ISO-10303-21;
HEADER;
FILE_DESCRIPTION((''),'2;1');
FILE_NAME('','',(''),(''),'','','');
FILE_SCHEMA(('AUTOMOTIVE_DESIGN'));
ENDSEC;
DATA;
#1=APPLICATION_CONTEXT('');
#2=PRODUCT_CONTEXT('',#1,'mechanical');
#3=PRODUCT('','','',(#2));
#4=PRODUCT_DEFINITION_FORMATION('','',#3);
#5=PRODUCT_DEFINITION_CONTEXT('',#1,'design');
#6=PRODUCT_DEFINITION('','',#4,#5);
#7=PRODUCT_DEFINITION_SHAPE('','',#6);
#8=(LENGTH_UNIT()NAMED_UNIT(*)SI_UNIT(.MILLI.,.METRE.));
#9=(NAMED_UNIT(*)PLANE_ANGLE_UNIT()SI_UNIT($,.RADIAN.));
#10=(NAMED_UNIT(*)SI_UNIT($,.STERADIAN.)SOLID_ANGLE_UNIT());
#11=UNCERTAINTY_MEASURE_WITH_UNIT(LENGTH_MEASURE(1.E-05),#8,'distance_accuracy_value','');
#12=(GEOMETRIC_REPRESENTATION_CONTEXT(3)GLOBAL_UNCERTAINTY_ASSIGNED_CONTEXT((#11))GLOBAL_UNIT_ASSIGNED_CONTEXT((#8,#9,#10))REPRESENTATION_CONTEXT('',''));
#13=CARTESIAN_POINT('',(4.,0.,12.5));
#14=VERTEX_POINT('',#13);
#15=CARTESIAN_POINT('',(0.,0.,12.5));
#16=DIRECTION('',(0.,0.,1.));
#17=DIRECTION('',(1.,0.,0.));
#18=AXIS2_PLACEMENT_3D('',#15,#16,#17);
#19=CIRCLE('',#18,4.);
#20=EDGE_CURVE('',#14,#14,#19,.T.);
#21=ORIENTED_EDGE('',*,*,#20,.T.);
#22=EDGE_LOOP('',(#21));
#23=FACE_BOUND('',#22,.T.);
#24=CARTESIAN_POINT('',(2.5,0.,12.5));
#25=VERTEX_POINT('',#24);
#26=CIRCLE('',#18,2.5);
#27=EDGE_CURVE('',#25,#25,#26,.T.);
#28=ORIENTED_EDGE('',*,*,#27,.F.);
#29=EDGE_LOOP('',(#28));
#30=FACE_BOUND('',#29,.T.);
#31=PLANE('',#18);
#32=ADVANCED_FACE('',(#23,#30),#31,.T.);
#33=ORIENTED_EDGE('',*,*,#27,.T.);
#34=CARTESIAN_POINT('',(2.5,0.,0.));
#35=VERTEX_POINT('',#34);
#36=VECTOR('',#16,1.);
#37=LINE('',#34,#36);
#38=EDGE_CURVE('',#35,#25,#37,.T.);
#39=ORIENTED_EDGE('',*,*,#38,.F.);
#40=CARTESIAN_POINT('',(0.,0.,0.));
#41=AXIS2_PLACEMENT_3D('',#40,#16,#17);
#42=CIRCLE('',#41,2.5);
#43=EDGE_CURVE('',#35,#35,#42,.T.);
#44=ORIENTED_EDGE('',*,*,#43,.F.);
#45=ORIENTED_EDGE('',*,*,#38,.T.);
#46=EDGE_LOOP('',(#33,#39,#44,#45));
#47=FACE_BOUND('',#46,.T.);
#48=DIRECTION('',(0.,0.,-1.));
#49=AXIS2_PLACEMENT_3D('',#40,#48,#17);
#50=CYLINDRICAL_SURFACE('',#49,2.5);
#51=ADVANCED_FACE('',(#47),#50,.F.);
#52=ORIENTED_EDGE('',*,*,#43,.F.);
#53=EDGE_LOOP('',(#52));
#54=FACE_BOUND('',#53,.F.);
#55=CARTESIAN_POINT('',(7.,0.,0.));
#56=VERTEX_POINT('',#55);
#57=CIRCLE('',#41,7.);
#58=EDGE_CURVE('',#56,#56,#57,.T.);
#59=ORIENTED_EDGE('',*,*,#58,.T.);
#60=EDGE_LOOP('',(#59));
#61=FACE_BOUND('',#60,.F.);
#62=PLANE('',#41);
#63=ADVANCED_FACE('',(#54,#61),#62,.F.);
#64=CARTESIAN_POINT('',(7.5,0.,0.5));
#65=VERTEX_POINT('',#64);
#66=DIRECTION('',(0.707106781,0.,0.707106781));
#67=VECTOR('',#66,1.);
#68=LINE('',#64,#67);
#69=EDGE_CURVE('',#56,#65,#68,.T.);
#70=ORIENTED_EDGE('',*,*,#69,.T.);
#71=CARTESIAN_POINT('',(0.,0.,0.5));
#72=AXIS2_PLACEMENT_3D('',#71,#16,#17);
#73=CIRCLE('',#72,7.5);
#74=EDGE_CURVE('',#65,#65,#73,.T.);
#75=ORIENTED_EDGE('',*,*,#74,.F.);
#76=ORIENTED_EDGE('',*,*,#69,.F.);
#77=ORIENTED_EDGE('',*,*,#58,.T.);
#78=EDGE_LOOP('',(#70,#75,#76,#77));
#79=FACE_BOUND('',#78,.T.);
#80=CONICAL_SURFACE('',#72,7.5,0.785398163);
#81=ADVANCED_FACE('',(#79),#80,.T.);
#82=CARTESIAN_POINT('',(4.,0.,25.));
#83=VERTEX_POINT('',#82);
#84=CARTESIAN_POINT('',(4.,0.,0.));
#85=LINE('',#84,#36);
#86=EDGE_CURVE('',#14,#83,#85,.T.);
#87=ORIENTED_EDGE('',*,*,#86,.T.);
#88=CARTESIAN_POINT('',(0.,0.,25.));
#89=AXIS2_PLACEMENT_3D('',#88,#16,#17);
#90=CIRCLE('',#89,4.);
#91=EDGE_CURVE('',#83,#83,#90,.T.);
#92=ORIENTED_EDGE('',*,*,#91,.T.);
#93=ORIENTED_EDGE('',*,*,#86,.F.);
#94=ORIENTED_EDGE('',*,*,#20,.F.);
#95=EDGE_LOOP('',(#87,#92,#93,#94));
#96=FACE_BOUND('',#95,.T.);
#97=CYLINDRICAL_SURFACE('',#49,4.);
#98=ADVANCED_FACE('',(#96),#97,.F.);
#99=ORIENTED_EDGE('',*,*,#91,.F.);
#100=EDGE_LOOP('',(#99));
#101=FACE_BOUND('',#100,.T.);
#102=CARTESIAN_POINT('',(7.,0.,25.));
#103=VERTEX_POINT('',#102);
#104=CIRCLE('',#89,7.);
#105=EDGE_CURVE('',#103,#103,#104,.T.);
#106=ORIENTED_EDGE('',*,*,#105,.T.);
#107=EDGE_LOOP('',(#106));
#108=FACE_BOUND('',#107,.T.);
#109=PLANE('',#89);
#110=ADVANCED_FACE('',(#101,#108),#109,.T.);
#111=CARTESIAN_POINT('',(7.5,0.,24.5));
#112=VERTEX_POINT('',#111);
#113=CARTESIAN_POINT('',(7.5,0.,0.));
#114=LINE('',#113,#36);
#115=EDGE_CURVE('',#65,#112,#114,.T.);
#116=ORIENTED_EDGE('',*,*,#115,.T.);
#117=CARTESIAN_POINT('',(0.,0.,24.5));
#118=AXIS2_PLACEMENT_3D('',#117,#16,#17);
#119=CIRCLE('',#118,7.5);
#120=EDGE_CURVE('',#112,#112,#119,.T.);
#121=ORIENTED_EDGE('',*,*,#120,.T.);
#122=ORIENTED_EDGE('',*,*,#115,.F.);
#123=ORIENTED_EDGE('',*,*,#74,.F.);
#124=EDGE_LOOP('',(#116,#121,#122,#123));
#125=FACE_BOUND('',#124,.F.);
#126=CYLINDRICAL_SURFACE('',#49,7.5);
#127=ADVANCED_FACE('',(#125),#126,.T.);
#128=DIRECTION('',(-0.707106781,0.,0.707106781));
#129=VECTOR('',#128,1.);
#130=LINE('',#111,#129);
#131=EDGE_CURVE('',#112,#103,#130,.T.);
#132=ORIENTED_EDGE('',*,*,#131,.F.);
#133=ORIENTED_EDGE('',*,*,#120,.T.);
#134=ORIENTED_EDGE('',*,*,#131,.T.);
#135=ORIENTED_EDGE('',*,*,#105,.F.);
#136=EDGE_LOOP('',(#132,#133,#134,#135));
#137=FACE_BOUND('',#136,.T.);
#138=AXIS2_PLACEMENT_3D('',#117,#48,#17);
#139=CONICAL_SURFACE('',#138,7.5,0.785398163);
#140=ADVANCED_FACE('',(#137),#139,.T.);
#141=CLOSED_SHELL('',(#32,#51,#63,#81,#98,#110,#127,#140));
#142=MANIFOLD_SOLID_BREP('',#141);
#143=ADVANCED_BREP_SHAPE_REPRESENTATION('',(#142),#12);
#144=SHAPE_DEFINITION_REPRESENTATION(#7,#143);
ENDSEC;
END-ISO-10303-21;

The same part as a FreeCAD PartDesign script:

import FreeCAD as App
import Part
import Sketcher

V = App.Vector


def edges_at(feature, points):
    """Names of the edges that pass closest to the given points."""
    edges = feature.Shape.Edges
    near = lambda p: min(range(len(edges)), key=lambda i: edges[i].distToShape(Part.Vertex(*p))[0])
    return sorted({f"Edge{near(p) + 1}" for p in points})

doc = App.newDocument("Part")
body = doc.addObject("PartDesign::Body", "Body")

sketch1 = body.newObject("Sketcher::SketchObject", "Sketch")
sketch1.AttachmentSupport = (doc.getObject("XY_Plane"), [""])
sketch1.MapMode = "FlatFace"
sketch1.addGeometry(Part.Circle(V(0, 0, 0), V(0, 0, 1), 7.5), False)
sketch1.addGeometry(Part.Circle(V(0, 0, 0), V(0, 0, 1), 4), False)
sketch1.addConstraint(Sketcher.Constraint("Coincident", 0, 3, -1, 1))
sketch1.addConstraint(Sketcher.Constraint("Coincident", 1, 3, -1, 1))
sketch1.addConstraint(Sketcher.Constraint("Diameter", 0, 15.0))
sketch1.addConstraint(Sketcher.Constraint("Diameter", 1, 8.0))
pad1 = body.newObject("PartDesign::Pad", "Pad")
pad1.Profile = sketch1
pad1.Length = 25

sketch2 = body.newObject("Sketcher::SketchObject", "Sketch001")
sketch2.AttachmentSupport = (doc.getObject("XY_Plane"), [""])
sketch2.MapMode = "FlatFace"
sketch2.addGeometry(Part.Circle(V(0, 0, 0), V(0, 0, 1), 4), False)
sketch2.addGeometry(Part.Circle(V(0, 0, 0), V(0, 0, 1), 2.5), False)
sketch2.addConstraint(Sketcher.Constraint("Coincident", 0, 3, -1, 1))
sketch2.addConstraint(Sketcher.Constraint("Coincident", 1, 3, -1, 1))
sketch2.addConstraint(Sketcher.Constraint("Diameter", 0, 8.0))
sketch2.addConstraint(Sketcher.Constraint("Diameter", 1, 5.0))
pad2 = body.newObject("PartDesign::Pad", "Pad001")
pad2.Profile = sketch2
pad2.Length = 12.5

sketch3 = body.newObject("Sketcher::SketchObject", "Sketch002")
sketch3.AttachmentSupport = (doc.getObject("XY_Plane"), [""])
sketch3.MapMode = "FlatFace"
sketch3.addGeometry(Part.Circle(V(0, 0, 0), V(0, 0, 1), 2.5), False)
sketch3.addConstraint(Sketcher.Constraint("Coincident", 0, 3, -1, 1))
sketch3.addConstraint(Sketcher.Constraint("Diameter", 0, 5.0))
pocket1 = body.newObject("PartDesign::Pocket", "Pocket")
pocket1.Profile = sketch3
pocket1.Length = 12.5
pocket1.Reversed = True
doc.recompute()

chamfer = body.newObject("PartDesign::Chamfer", "Chamfer")
chamfer.Base = (pocket1, edges_at(pocket1, [(-7.5, 0, 25), (-7.5, 0, 0)]))
chamfer.Size = 0.5

doc.recompute()
